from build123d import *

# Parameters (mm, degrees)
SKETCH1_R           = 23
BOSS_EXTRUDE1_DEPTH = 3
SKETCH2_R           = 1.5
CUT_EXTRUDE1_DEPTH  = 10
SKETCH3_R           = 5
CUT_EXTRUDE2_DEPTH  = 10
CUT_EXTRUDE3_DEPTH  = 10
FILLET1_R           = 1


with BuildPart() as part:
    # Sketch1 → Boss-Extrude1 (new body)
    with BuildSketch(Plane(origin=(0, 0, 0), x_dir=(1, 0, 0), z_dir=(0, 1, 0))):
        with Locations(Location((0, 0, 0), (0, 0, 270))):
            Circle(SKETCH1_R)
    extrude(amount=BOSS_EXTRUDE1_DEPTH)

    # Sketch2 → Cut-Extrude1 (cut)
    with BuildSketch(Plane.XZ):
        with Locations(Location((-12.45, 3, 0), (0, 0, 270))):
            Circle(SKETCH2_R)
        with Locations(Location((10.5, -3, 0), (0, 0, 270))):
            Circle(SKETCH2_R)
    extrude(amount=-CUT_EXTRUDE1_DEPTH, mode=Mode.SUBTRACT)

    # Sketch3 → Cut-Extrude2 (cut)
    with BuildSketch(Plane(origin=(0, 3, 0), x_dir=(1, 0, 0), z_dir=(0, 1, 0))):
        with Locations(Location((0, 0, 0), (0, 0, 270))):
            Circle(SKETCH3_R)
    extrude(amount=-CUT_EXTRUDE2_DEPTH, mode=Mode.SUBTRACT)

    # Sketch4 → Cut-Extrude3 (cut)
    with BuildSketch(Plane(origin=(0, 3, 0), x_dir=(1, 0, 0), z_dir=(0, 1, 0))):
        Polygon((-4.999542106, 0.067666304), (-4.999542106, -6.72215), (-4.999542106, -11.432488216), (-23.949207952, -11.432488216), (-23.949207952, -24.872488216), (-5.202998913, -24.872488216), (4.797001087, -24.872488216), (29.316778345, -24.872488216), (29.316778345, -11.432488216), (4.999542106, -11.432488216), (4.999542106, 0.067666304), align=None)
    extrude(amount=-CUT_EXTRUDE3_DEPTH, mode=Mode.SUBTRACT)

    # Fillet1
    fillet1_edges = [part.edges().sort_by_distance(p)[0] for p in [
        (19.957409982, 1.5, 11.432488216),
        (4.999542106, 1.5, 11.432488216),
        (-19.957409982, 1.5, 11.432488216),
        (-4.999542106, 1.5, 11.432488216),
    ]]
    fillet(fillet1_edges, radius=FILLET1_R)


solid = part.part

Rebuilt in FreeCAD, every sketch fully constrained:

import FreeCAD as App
import Part
import Sketcher
Q = App.Units.Quantity


def edges_at(feature, points):
    """Names of the edges that pass closest to the given points."""
    edges = feature.Shape.Edges
    near = lambda p: min(range(len(edges)), key=lambda i: edges[i].distToShape(Part.Vertex(*p))[0])
    return sorted({f"Edge{near(p) + 1}" for p in points})

doc = App.newDocument("Part")
body = doc.addObject("PartDesign::Body", "Body")

# Sketch on XZ plane
sketch1 = doc.addObject("Sketcher::SketchObject", "Sketch")
body.addObject(sketch1)
sketch1.AttachmentSupport = (doc.XZ_Plane, [""])
sketch1.MapMode = "FlatFace"
sketch1.addGeometry(Part.Circle(App.Vector(0, 0, 0), App.Vector(0, 0, 1), 23), False)
sketch1.addConstraint(Sketcher.Constraint("Coincident", 0, 3, -1, 1))
sketch1.addConstraint(Sketcher.Constraint("Diameter", 0, Q("46 mm")))
pad1 = doc.addObject("PartDesign::Pad", "Pad")
body.addObject(pad1)
pad1.Profile = sketch1
pad1.Length = 3
pad1.Reversed = True

# Sketch on XZ plane
sketch2 = doc.addObject("Sketcher::SketchObject", "Sketch001")
body.addObject(sketch2)
sketch2.AttachmentSupport = (doc.XZ_Plane, [""])
sketch2.MapMode = "FlatFace"
sketch2.addGeometry(Part.Circle(App.Vector(-12.45, 3, 0), App.Vector(0, 0, 1), 1.5), False)
sketch2.addGeometry(Part.Circle(App.Vector(10.5, -3, 0), App.Vector(0, 0, 1), 1.5), False)
sketch2.addConstraint(Sketcher.Constraint("Equal", 0, 1))
sketch2.addConstraint(Sketcher.Constraint("Diameter", 0, Q("3 mm")))
sketch2.addConstraint(Sketcher.Constraint("DistanceY", -1, 1, 0, 3, Q("3 mm")))
sketch2.addConstraint(Sketcher.Constraint("DistanceY", 1, 3, -1, 1, Q("3 mm")))
sketch2.addConstraint(Sketcher.Constraint("DistanceX", -1, 1, 1, 3, Q("10.5 mm")))
sketch2.addConstraint(Sketcher.Constraint("DistanceX", 0, 3, -1, 1, Q("12.45 mm")))
pocket1 = doc.addObject("PartDesign::Pocket", "Pocket")
body.addObject(pocket1)
pocket1.Profile = sketch2
pocket1.Length = 10

# Sketch on XZ plane
sketch3 = doc.addObject("Sketcher::SketchObject", "Sketch002")
body.addObject(sketch3)
sketch3.AttachmentSupport = (doc.XZ_Plane, [""])
sketch3.MapMode = "FlatFace"
sketch3.AttachmentOffset = App.Placement(App.Vector(0, 0, -3), App.Rotation())
sketch3.addGeometry(Part.Circle(App.Vector(0, 0, 0), App.Vector(0, 0, 1), 5), False)
sketch3.addConstraint(Sketcher.Constraint("Coincident", 0, 3, -1, 1))
sketch3.addConstraint(Sketcher.Constraint("Diameter", 0, Q("10 mm")))
pocket2 = doc.addObject("PartDesign::Pocket", "Pocket001")
body.addObject(pocket2)
pocket2.Profile = sketch3
pocket2.Length = 10
pocket2.Reversed = True

# Sketch on XZ plane
sketch4 = doc.addObject("Sketcher::SketchObject", "Sketch003")
body.addObject(sketch4)
sketch4.AttachmentSupport = (doc.XZ_Plane, [""])
sketch4.MapMode = "FlatFace"
sketch4.AttachmentOffset = App.Placement(App.Vector(0, 0, -3), App.Rotation())
sketch4.addGeometry(Part.LineSegment(App.Vector(-4.999542, -0.067666, 0), App.Vector(-4.999542, 11.432488, 0)), False)
sketch4.addGeometry(Part.LineSegment(App.Vector(-4.999542, 11.432488, 0), App.Vector(-23.949208, 11.432488, 0)), False)
sketch4.addGeometry(Part.LineSegment(App.Vector(-23.949208, 11.432488, 0), App.Vector(-23.949208, 24.872488, 0)), False)
sketch4.addGeometry(Part.LineSegment(App.Vector(-23.949208, 24.872488, 0), App.Vector(29.316778, 24.872488, 0)), False)
sketch4.addGeometry(Part.LineSegment(App.Vector(29.316778, 24.872488, 0), App.Vector(29.316778, 11.432488, 0)), False)
sketch4.addGeometry(Part.LineSegment(App.Vector(29.316778, 11.432488, 0), App.Vector(4.999542, 11.432488, 0)), False)
sketch4.addGeometry(Part.LineSegment(App.Vector(4.999542, 11.432488, 0), App.Vector(4.999542, -0.067666, 0)), False)
sketch4.addGeometry(Part.LineSegment(App.Vector(4.999542, -0.067666, 0), App.Vector(-4.999542, -0.067666, 0)), False)
sketch4.addConstraint(Sketcher.Constraint("Coincident", 0, 2, 1, 1))
sketch4.addConstraint(Sketcher.Constraint("Coincident", 1, 2, 2, 1))
sketch4.addConstraint(Sketcher.Constraint("Coincident", 2, 2, 3, 1))
sketch4.addConstraint(Sketcher.Constraint("Coincident", 3, 2, 4, 1))
sketch4.addConstraint(Sketcher.Constraint("Coincident", 4, 2, 5, 1))
sketch4.addConstraint(Sketcher.Constraint("Coincident", 5, 2, 6, 1))
sketch4.addConstraint(Sketcher.Constraint("Coincident", 6, 2, 7, 1))
sketch4.addConstraint(Sketcher.Constraint("Coincident", 7, 2, 0, 1))
sketch4.addConstraint(Sketcher.Constraint("Vertical", 0))
sketch4.addConstraint(Sketcher.Constraint("Horizontal", 1))
sketch4.addConstraint(Sketcher.Constraint("Vertical", 2))
sketch4.addConstraint(Sketcher.Constraint("Horizontal", 3))
sketch4.addConstraint(Sketcher.Constraint("Vertical", 4))
sketch4.addConstraint(Sketcher.Constraint("Horizontal", 5))
sketch4.addConstraint(Sketcher.Constraint("Vertical", 6))
sketch4.addConstraint(Sketcher.Constraint("Horizontal", 7))
sketch4.addConstraint(Sketcher.Constraint("Symmetric", 0, 2, 5, 2, -2))
sketch4.addConstraint(Sketcher.Constraint("DistanceY", 2, 1, 2, 2, Q("13.44 mm")))
sketch4.addConstraint(Sketcher.Constraint("DistanceX", 1, 2, 1, 1, Q("18.949666 mm")))
sketch4.addConstraint(Sketcher.Constraint("DistanceX", 3, 1, 3, 2, Q("53.265986 mm")))
sketch4.addConstraint(Sketcher.Constraint("DistanceX", 5, 2, 5, 1, Q("24.317236 mm")))
sketch4.addConstraint(Sketcher.Constraint("DistanceY", 0, 1, 0, 2, Q("11.500155 mm")))
sketch4.addConstraint(Sketcher.Constraint("DistanceY", -1, 1, 0, 2, Q("11.432488 mm")))
pocket3 = doc.addObject("PartDesign::Pocket", "Pocket002")
body.addObject(pocket3)
pocket3.Profile = sketch4
pocket3.Length = 10
pocket3.Reversed = True
doc.recompute()

fillet = doc.addObject("PartDesign::Fillet", "Fillet")
body.addObject(fillet)
fillet.Base = (pocket3, edges_at(pocket3, [
    (19.957, 1.5, 11.432),
    (5, 1.5, 11.432),
    (-19.957, 1.5, 11.432),
    (-5, 1.5, 11.432),
]))
fillet.Radius = 1

doc.recompute()
